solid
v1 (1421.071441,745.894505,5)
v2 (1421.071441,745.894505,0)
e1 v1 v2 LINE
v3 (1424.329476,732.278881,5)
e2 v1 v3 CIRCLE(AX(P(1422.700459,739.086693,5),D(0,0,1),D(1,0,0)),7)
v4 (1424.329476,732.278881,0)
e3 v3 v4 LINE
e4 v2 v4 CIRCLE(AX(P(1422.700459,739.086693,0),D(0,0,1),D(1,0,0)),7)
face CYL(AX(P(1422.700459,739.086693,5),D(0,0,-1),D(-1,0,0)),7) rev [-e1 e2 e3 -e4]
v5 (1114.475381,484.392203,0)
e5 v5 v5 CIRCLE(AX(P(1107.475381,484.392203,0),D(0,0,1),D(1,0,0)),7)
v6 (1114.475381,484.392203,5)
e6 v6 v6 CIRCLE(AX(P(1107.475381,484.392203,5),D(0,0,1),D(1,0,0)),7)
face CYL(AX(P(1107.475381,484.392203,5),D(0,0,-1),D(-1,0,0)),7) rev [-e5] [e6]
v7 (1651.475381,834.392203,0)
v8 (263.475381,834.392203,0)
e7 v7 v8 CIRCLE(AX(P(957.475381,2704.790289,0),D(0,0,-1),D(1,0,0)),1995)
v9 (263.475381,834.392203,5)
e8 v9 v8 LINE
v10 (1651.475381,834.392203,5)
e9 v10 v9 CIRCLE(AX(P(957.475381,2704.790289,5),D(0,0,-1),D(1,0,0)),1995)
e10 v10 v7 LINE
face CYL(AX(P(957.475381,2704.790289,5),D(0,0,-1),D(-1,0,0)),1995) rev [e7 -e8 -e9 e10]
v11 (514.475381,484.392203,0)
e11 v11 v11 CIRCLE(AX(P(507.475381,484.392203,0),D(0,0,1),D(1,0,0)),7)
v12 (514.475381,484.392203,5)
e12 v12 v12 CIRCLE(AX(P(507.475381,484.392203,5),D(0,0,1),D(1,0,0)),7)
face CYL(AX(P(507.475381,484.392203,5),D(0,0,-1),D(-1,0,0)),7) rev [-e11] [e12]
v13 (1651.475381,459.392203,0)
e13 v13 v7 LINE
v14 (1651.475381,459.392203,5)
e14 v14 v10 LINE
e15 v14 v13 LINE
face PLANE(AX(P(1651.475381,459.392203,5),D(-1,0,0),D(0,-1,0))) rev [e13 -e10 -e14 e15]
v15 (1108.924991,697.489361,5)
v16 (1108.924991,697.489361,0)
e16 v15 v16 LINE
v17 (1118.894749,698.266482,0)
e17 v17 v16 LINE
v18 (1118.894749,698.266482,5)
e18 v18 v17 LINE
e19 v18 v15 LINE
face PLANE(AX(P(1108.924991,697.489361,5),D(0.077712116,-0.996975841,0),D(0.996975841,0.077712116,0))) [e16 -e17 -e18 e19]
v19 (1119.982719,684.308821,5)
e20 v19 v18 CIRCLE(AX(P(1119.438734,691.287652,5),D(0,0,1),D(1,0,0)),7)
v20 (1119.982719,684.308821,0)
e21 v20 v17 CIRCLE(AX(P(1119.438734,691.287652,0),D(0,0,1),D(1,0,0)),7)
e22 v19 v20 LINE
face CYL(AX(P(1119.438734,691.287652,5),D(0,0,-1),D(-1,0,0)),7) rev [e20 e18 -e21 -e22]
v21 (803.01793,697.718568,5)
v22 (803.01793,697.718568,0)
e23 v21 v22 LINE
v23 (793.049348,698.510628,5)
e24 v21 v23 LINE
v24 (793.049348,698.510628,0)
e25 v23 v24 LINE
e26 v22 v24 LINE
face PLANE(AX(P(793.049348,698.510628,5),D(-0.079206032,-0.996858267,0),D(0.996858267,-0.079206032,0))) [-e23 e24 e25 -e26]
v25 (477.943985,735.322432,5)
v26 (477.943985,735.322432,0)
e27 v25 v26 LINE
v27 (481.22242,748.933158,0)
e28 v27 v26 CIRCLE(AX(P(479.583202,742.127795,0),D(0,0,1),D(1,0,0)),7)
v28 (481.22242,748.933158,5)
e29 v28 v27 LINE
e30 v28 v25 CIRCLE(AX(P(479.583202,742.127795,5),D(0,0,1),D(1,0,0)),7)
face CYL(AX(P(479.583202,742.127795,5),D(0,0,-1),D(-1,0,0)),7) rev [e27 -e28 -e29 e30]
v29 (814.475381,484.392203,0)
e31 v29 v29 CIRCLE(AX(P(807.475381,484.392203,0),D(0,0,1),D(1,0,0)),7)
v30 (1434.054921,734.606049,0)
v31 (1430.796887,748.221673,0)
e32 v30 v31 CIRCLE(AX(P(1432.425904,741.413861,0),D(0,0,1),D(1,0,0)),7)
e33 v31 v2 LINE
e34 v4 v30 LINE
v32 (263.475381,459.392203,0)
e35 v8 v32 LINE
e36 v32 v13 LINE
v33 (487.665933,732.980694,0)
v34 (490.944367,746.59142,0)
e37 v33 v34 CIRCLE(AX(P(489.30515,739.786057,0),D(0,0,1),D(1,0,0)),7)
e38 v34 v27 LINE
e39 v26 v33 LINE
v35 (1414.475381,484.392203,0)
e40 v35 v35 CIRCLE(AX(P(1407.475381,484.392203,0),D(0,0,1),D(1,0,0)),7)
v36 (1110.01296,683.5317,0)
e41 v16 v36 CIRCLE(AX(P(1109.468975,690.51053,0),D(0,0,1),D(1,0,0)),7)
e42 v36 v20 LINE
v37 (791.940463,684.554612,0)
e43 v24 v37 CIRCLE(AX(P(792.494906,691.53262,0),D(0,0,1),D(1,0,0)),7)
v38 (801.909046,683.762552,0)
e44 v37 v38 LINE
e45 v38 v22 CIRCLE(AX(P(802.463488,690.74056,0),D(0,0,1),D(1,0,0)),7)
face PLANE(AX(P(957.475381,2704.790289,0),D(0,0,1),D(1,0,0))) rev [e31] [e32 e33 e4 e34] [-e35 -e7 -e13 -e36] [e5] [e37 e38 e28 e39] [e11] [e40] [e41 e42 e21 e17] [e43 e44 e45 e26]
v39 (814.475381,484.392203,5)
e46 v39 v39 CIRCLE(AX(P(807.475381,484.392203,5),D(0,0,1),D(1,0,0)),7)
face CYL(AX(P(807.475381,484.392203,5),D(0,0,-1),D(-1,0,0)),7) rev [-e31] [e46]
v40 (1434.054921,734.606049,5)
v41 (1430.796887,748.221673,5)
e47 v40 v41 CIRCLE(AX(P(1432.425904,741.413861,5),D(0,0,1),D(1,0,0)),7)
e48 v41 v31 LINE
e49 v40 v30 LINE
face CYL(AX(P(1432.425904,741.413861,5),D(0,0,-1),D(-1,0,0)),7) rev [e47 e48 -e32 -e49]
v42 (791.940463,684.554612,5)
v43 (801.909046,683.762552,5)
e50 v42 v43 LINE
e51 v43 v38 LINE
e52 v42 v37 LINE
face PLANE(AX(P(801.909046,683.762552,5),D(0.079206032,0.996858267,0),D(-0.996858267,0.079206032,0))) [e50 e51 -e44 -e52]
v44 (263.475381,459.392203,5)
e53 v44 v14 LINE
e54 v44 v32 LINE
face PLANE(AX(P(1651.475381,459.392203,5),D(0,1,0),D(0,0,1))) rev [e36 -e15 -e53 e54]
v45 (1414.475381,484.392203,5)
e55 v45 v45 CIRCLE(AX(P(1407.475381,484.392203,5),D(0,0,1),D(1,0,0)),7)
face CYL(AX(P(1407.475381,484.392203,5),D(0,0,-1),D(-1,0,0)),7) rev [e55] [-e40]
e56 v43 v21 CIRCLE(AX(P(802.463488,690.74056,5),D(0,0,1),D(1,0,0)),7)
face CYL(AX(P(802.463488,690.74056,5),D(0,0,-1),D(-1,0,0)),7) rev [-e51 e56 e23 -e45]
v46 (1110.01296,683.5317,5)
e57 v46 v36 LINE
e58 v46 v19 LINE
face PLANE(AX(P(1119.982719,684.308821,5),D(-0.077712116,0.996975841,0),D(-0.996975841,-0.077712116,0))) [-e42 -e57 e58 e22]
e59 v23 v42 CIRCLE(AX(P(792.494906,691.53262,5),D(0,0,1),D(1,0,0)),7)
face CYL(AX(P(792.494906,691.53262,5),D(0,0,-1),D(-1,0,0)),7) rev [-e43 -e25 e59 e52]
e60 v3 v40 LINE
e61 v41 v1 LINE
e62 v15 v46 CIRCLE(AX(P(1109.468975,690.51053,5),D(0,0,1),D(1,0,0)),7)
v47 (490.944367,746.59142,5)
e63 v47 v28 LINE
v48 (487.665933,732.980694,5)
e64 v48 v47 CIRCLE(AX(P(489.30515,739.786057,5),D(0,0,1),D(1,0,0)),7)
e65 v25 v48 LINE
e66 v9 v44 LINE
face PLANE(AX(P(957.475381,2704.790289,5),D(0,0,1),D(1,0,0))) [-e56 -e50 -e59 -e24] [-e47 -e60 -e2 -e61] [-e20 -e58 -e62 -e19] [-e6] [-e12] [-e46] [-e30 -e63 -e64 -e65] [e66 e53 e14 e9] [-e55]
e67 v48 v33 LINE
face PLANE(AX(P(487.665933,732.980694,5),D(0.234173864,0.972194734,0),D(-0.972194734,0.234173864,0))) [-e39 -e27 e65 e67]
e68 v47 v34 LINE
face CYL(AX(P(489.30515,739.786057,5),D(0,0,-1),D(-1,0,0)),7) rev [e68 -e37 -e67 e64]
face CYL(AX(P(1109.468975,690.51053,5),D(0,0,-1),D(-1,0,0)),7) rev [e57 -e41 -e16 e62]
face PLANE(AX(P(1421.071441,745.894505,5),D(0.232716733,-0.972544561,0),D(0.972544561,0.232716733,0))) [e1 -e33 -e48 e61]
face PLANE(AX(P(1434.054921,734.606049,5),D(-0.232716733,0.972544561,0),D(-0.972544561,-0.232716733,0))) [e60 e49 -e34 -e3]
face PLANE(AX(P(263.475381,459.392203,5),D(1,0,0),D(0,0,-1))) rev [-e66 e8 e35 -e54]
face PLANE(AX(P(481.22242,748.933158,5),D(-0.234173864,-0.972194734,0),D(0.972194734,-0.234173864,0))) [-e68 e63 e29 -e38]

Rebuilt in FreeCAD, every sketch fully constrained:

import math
import FreeCAD as App
import Part
import Sketcher

V = App.Vector
Q = App.Units.Quantity

doc = App.newDocument("Part")
body = doc.addObject("PartDesign::Body", "Body")

sketch1 = body.newObject("Sketcher::SketchObject", "Sketch")
sketch1.AttachmentSupport = (doc.getObject("XY_Plane"), [""])
sketch1.MapMode = "FlatFace"
sketch1.addGeometry([
    Part.LineSegment(V(263.475381, 459.392203, 0), V(1651.475381, 459.392203, 0)),
    Part.LineSegment(V(1651.475381, 459.392203, 0), V(1651.475381, 834.392203, 0)),
    Part.ArcOfCircle(Part.Circle(V(957.475381, 2704.790289, 0), V(0, 0, 1), 1995), math.radians(-110.35707), math.radians(-69.64293)),
    Part.LineSegment(V(263.475381, 834.392203, 0), V(263.475381, 459.392203, 0)),
    Part.Circle(V(1407.475381, 484.392203, 0), V(0, 0, 1), 7),
    Part.Circle(V(1107.475381, 484.392203, 0), V(0, 0, 1), 7),
    Part.Circle(V(807.475381, 484.392203, 0), V(0, 0, 1), 7),
    Part.Circle(V(507.475381, 484.392203, 0), V(0, 0, 1), 7),
    Part.LineSegment(V(1434.054921, 734.606049, 0), V(1424.329476, 732.278881, 0)),
    Part.ArcOfCircle(Part.Circle(V(1422.700459, 739.086693, 0), V(0, 0, 1), 7), math.radians(103.45707), math.radians(283.45707)),
    Part.LineSegment(V(1421.071441, 745.894505, 0), V(1430.796887, 748.221673, 0)),
    Part.ArcOfCircle(Part.Circle(V(1432.425904, 741.413861, 0), V(0, 0, 1), 7), math.radians(-76.54293), math.radians(103.45707)),
    Part.LineSegment(V(1119.982719, 684.308821, 0), V(1110.01296, 683.5317, 0)),
    Part.ArcOfCircle(Part.Circle(V(1109.468975, 690.51053, 0), V(0, 0, 1), 7), math.radians(94.45707), math.radians(274.45707)),
    Part.LineSegment(V(1108.924991, 697.489361, 0), V(1118.894749, 698.266482, 0)),
    Part.ArcOfCircle(Part.Circle(V(1119.438734, 691.287652, 0), V(0, 0, 1), 7), math.radians(-85.54293), math.radians(94.45707)),
    Part.LineSegment(V(801.909046, 683.762552, 0), V(791.940463, 684.554612, 0)),
    Part.ArcOfCircle(Part.Circle(V(792.494906, 691.53262, 0), V(0, 0, 1), 7), math.radians(85.45707), math.radians(265.45707)),
    Part.LineSegment(V(793.049348, 698.510628, 0), V(803.01793, 697.718568, 0)),
    Part.ArcOfCircle(Part.Circle(V(802.463488, 690.74056, 0), V(0, 0, 1), 7), math.radians(-94.54293), math.radians(85.45707)),
    Part.LineSegment(V(487.665933, 732.980694, 0), V(477.943985, 735.322432, 0)),
    Part.ArcOfCircle(Part.Circle(V(479.583202, 742.127795, 0), V(0, 0, 1), 7), math.radians(76.45707), math.radians(256.45707)),
    Part.LineSegment(V(481.22242, 748.933158, 0), V(490.944367, 746.59142, 0)),
    Part.ArcOfCircle(Part.Circle(V(489.30515, 739.786057, 0), V(0, 0, 1), 7), math.radians(-103.54293), math.radians(76.45707)),
], False)
sketch1.addConstraint([
    Sketcher.Constraint("Coincident", 0, 2, 1, 1),
    Sketcher.Constraint("Coincident", 1, 2, 2, 2),
    Sketcher.Constraint("Coincident", 2, 1, 3, 1),
    Sketcher.Constraint("Coincident", 3, 2, 0, 1),
    Sketcher.Constraint("Tangent", 8, 2, 9, 2),
    Sketcher.Constraint("Tangent", 9, 1, 10, 1),
    Sketcher.Constraint("Tangent", 10, 2, 11, 2),
    Sketcher.Constraint("Tangent", 11, 1, 8, 1),
    Sketcher.Constraint("Tangent", 12, 2, 13, 2),
    Sketcher.Constraint("Tangent", 13, 1, 14, 1),
    Sketcher.Constraint("Tangent", 14, 2, 15, 2),
    Sketcher.Constraint("Tangent", 15, 1, 12, 1),
    Sketcher.Constraint("Tangent", 16, 2, 17, 2),
    Sketcher.Constraint("Tangent", 17, 1, 18, 1),
    Sketcher.Constraint("Tangent", 18, 2, 19, 2),
    Sketcher.Constraint("Tangent", 19, 1, 16, 1),
    Sketcher.Constraint("Tangent", 20, 2, 21, 2),
    Sketcher.Constraint("Tangent", 21, 1, 22, 1),
    Sketcher.Constraint("Tangent", 22, 2, 23, 2),
    Sketcher.Constraint("Tangent", 23, 1, 20, 1),
    Sketcher.Constraint("Horizontal", 0),
    Sketcher.Constraint("Vertical", 1),
    Sketcher.Constraint("Vertical", 3),
    Sketcher.Constraint("Equal", 4, 5),
    Sketcher.Constraint("Equal", 5, 6),
    Sketcher.Constraint("Equal", 6, 7),
    Sketcher.Constraint("Equal", 7, 9),
    Sketcher.Constraint("Equal", 9, 11),
    Sketcher.Constraint("Equal", 11, 13),
    Sketcher.Constraint("Equal", 13, 15),
    Sketcher.Constraint("Equal", 15, 17),
    Sketcher.Constraint("Equal", 17, 19),
    Sketcher.Constraint("Equal", 19, 21),
    Sketcher.Constraint("Equal", 21, 23),
    Sketcher.Constraint("Horizontal", 4, 3, 5, 3),
    Sketcher.Constraint("Horizontal", 5, 3, 6, 3),
    Sketcher.Constraint("Horizontal", 6, 3, 7, 3),
    Sketcher.Constraint("Equal", 1, 3),
    Sketcher.Constraint("Equal", 10, 12),
    Sketcher.Constraint("Equal", 14, 16),
    Sketcher.Constraint("Equal", 18, 20),
    Sketcher.Constraint("Diameter", 4, Q("14 mm")),
    Sketcher.Constraint("Radius", 2, Q("1995 mm")),
    Sketcher.Constraint("DistanceX", 0, 1, 0, 2, Q("1388 mm")),
    Sketcher.Constraint("DistanceY", 1, 1, 1, 2, Q("375 mm")),
    Sketcher.Constraint("Distance", 8, Q("10 mm")),
    Sketcher.Constraint("DistanceX", 2, 3, 4, 3, Q("450 mm")),
    Sketcher.Constraint("DistanceX", 5, 3, 4, 3, Q("300 mm")),
    Sketcher.Constraint("DistanceX", 6, 3, 5, 3, Q("300 mm")),
    Sketcher.Constraint("DistanceX", 7, 3, 6, 3, Q("300 mm")),
    Sketcher.Constraint("DistanceY", 0, 2, 4, 3, Q("25 mm")),
    Sketcher.Constraint("DistanceY", -1, 1, 12, 2, Q("683.5317 mm")),
    Sketcher.Constraint("DistanceY", 9, 1, 1, 2, Q("88.497698 mm")),
    Sketcher.Constraint("DistanceY", 19, 3, 13, 1, Q("6.748801 mm")),
    Sketcher.Constraint("DistanceX", 17, 1, 19, 1, Q("8.859698 mm")),
    Sketcher.Constraint("DistanceY", 23, 3, 21, 1, Q("9.147102 mm")),
    Sketcher.Constraint("DistanceX", -1, 1, 2, 3, Q("957.475381 mm")),
    Sketcher.Constraint("DistanceY", -1, 1, 2, 3, Q("2704.790289 mm")),
    Sketcher.Constraint("DistanceX", -1, 1, 9, 3, Q("1422.700459 mm")),
    Sketcher.Constraint("DistanceY", -1, 1, 11, 3, Q("741.413861 mm")),
    Sketcher.Constraint("DistanceY", -1, 1, 13, 3, Q("690.51053 mm")),
    Sketcher.Constraint("DistanceX", -1, 1, 19, 3, Q("802.463488 mm")),
    Sketcher.Constraint("DistanceX", -1, 1, 23, 3, Q("489.30515 mm")),
    Sketcher.Constraint("DistanceX", -1, 1, 12, 2, Q("1110.01296 mm")),
    Sketcher.Constraint("DistanceY", -1, 1, 21, 1, Q("748.933158 mm")),
])
pad1 = body.newObject("PartDesign::Pad", "Pad")
pad1.Profile = sketch1
pad1.Length = 5

doc.recompute()
